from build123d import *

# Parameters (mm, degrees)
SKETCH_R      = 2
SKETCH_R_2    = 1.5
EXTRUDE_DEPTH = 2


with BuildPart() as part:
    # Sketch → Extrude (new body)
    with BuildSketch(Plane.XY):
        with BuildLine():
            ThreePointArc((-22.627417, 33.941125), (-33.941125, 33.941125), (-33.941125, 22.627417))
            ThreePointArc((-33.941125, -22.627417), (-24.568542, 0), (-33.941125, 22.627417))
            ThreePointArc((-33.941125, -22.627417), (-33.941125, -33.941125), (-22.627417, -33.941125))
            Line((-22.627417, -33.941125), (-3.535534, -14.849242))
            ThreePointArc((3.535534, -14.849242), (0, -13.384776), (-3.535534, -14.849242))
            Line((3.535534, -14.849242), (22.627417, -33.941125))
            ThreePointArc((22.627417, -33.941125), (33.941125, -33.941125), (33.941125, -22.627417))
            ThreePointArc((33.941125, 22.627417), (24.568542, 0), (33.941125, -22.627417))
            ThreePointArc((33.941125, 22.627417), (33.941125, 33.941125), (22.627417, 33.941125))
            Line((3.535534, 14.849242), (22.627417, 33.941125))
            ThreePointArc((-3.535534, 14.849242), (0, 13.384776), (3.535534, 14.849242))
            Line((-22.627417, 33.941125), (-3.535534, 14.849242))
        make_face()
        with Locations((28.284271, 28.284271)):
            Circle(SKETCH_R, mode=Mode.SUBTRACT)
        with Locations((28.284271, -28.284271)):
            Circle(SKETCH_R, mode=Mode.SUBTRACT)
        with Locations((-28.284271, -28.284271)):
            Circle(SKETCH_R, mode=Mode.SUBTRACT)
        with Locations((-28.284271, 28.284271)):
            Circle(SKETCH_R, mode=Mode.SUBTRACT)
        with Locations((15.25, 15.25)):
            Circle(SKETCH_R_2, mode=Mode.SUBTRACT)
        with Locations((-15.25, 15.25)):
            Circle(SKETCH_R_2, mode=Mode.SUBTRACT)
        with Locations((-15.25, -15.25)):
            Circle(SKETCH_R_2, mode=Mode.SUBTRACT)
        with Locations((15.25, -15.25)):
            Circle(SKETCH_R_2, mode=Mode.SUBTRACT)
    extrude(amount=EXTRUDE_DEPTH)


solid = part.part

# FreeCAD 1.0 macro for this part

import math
import FreeCAD as App
import Part
import Sketcher

doc = App.newDocument("Part")
body = doc.addObject("PartDesign::Body", "Body")

# Sketch on XY plane
sketch1 = body.newObject("Sketcher::SketchObject", "Sketch")
sketch1.AttachmentSupport = (doc.getObject("XY_Plane"), [""])
sketch1.MapMode = "FlatFace"
sketch1.addGeometry([
    Part.ArcOfCircle(Part.Circle(App.Vector(-28.3, 28.3, 0), App.Vector(0, 0, 1), 8), math.radians(45), math.radians(225)),  # 0
    Part.ArcOfCircle(Part.Circle(App.Vector(-56.6, 0, 0), App.Vector(0, 0, 1), 32), math.radians(-45), math.radians(45)),  # 1
    Part.ArcOfCircle(Part.Circle(App.Vector(-28.3, -28.3, 0), App.Vector(0, 0, 1), 8), math.radians(135), math.radians(315)),  # 2
    Part.LineSegment(App.Vector(-22.6, -33.9, 0), App.Vector(-3.5, -14.8, 0)),  # 3
    Part.ArcOfCircle(Part.Circle(App.Vector(0, -18.4, 0), App.Vector(0, 0, 1), 5), math.radians(45), math.radians(135)),  # 4
    Part.LineSegment(App.Vector(3.5, -14.8, 0), App.Vector(22.6, -33.9, 0)),  # 5
    Part.ArcOfCircle(Part.Circle(App.Vector(28.3, -28.3, 0), App.Vector(0, 0, 1), 8), math.radians(-135), math.radians(45)),  # 6
    Part.ArcOfCircle(Part.Circle(App.Vector(56.6, 0, 0), App.Vector(0, 0, 1), 32), math.radians(135), math.radians(225)),  # 7
    Part.ArcOfCircle(Part.Circle(App.Vector(28.3, 28.3, 0), App.Vector(0, 0, 1), 8), math.radians(-45), math.radians(135)),  # 8
    Part.LineSegment(App.Vector(22.6, 33.9, 0), App.Vector(3.5, 14.8, 0)),  # 9
    Part.ArcOfCircle(Part.Circle(App.Vector(0, 18.4, 0), App.Vector(0, 0, 1), 5), math.radians(-135), math.radians(-45)),  # 10
    Part.LineSegment(App.Vector(-3.5, 14.8, 0), App.Vector(-22.6, 33.9, 0)),  # 11
    Part.Circle(App.Vector(-28.3, -28.3, 0), App.Vector(0, 0, 1), 2),  # 12
    Part.Circle(App.Vector(-15.2, -15.2, 0), App.Vector(0, 0, 1), 1.5),  # 13
    Part.Circle(App.Vector(28.3, -28.3, 0), App.Vector(0, 0, 1), 2),  # 14
    Part.Circle(App.Vector(15.2, -15.2, 0), App.Vector(0, 0, 1), 1.5),  # 15
    Part.Circle(App.Vector(-15.2, 15.2, 0), App.Vector(0, 0, 1), 1.5),  # 16
    Part.Circle(App.Vector(-28.3, 28.3, 0), App.Vector(0, 0, 1), 2),  # 17
    Part.Circle(App.Vector(15.2, 15.2, 0), App.Vector(0, 0, 1), 1.5),  # 18
    Part.Circle(App.Vector(28.3, 28.3, 0), App.Vector(0, 0, 1), 2),  # 19
], False)
sketch1.addConstraint([
    Sketcher.Constraint("Tangent", 0, 2, 1, 2),
    Sketcher.Constraint("Tangent", 1, 1, 2, 1),
    Sketcher.Constraint("Tangent", 2, 2, 3, 1),
    Sketcher.Constraint("Tangent", 3, 2, 4, 2),
    Sketcher.Constraint("Tangent", 4, 1, 5, 1),
    Sketcher.Constraint("Tangent", 5, 2, 6, 1),
    Sketcher.Constraint("Tangent", 6, 2, 7, 2),
    Sketcher.Constraint("Tangent", 7, 1, 8, 1),
    Sketcher.Constraint("Tangent", 8, 2, 9, 1),
    Sketcher.Constraint("Tangent", 9, 2, 10, 2),
    Sketcher.Constraint("Tangent", 10, 1, 11, 1),
    Sketcher.Constraint("Tangent", 11, 2, 0, 1),
    Sketcher.Constraint("Coincident", 12, 3, 2, 3),
    Sketcher.Constraint("Coincident", 14, 3, 6, 3),
    Sketcher.Constraint("Coincident", 17, 3, 0, 3),
    Sketcher.Constraint("Coincident", 19, 3, 8, 3),
    Sketcher.Constraint("Equal", 0, 2),
    Sketcher.Constraint("Equal", 2, 6),
    Sketcher.Constraint("Equal", 1, 7),
    Sketcher.Constraint("Equal", 6, 8),
    Sketcher.Constraint("Equal", 4, 10),
    Sketcher.Constraint("Equal", 12, 14),
    Sketcher.Constraint("Equal", 13, 15),
    Sketcher.Constraint("Equal", 15, 16),
    Sketcher.Constraint("Equal", 14, 17),
    Sketcher.Constraint("Equal", 16, 18),
    Sketcher.Constraint("Equal", 17, 19),
    Sketcher.Constraint("Symmetric", 0, 3, 6, 3, -1, 1),
    Sketcher.Constraint("Symmetric", 2, 3, 8, 3, -1, 1),
    Sketcher.Constraint("Symmetric", 4, 3, 10, 3, -1, 1),
    Sketcher.Constraint("Symmetric", 15, 3, 16, 3, -1, 1),
    Sketcher.Constraint("Symmetric", 13, 3, 18, 3, -1, 1),
    Sketcher.Constraint("Symmetric", 2, 3, 6, 3, -2),
    Sketcher.Constraint("Symmetric", 13, 3, 15, 3, -2),
    Sketcher.Constraint("PointOnObject", 4, 3, -2),
    Sketcher.Constraint("Perpendicular", 3, 5),
    Sketcher.Constraint("Diameter", 12, 4.0),
    Sketcher.Constraint("Diameter", 13, 3.0),
    Sketcher.Constraint("Radius", 0, 8.0),
    Sketcher.Constraint("Radius", 1, 32.0),
    Sketcher.Constraint("Radius", 4, 5.0),
    Sketcher.Constraint("Distance", 3, 27.0),
    Sketcher.Constraint("DistanceX", 13, 3, 15, 3, 30.5),
    Sketcher.Constraint("DistanceY", 13, 3, 16, 3, 30.5),
    Sketcher.Constraint("DistanceY", -1, 1, 0, 3, 28.284271),
])
pad1 = body.newObject("PartDesign::Pad", "Pad")
pad1.Profile = sketch1
pad1.Length = 2

doc.recompute()
